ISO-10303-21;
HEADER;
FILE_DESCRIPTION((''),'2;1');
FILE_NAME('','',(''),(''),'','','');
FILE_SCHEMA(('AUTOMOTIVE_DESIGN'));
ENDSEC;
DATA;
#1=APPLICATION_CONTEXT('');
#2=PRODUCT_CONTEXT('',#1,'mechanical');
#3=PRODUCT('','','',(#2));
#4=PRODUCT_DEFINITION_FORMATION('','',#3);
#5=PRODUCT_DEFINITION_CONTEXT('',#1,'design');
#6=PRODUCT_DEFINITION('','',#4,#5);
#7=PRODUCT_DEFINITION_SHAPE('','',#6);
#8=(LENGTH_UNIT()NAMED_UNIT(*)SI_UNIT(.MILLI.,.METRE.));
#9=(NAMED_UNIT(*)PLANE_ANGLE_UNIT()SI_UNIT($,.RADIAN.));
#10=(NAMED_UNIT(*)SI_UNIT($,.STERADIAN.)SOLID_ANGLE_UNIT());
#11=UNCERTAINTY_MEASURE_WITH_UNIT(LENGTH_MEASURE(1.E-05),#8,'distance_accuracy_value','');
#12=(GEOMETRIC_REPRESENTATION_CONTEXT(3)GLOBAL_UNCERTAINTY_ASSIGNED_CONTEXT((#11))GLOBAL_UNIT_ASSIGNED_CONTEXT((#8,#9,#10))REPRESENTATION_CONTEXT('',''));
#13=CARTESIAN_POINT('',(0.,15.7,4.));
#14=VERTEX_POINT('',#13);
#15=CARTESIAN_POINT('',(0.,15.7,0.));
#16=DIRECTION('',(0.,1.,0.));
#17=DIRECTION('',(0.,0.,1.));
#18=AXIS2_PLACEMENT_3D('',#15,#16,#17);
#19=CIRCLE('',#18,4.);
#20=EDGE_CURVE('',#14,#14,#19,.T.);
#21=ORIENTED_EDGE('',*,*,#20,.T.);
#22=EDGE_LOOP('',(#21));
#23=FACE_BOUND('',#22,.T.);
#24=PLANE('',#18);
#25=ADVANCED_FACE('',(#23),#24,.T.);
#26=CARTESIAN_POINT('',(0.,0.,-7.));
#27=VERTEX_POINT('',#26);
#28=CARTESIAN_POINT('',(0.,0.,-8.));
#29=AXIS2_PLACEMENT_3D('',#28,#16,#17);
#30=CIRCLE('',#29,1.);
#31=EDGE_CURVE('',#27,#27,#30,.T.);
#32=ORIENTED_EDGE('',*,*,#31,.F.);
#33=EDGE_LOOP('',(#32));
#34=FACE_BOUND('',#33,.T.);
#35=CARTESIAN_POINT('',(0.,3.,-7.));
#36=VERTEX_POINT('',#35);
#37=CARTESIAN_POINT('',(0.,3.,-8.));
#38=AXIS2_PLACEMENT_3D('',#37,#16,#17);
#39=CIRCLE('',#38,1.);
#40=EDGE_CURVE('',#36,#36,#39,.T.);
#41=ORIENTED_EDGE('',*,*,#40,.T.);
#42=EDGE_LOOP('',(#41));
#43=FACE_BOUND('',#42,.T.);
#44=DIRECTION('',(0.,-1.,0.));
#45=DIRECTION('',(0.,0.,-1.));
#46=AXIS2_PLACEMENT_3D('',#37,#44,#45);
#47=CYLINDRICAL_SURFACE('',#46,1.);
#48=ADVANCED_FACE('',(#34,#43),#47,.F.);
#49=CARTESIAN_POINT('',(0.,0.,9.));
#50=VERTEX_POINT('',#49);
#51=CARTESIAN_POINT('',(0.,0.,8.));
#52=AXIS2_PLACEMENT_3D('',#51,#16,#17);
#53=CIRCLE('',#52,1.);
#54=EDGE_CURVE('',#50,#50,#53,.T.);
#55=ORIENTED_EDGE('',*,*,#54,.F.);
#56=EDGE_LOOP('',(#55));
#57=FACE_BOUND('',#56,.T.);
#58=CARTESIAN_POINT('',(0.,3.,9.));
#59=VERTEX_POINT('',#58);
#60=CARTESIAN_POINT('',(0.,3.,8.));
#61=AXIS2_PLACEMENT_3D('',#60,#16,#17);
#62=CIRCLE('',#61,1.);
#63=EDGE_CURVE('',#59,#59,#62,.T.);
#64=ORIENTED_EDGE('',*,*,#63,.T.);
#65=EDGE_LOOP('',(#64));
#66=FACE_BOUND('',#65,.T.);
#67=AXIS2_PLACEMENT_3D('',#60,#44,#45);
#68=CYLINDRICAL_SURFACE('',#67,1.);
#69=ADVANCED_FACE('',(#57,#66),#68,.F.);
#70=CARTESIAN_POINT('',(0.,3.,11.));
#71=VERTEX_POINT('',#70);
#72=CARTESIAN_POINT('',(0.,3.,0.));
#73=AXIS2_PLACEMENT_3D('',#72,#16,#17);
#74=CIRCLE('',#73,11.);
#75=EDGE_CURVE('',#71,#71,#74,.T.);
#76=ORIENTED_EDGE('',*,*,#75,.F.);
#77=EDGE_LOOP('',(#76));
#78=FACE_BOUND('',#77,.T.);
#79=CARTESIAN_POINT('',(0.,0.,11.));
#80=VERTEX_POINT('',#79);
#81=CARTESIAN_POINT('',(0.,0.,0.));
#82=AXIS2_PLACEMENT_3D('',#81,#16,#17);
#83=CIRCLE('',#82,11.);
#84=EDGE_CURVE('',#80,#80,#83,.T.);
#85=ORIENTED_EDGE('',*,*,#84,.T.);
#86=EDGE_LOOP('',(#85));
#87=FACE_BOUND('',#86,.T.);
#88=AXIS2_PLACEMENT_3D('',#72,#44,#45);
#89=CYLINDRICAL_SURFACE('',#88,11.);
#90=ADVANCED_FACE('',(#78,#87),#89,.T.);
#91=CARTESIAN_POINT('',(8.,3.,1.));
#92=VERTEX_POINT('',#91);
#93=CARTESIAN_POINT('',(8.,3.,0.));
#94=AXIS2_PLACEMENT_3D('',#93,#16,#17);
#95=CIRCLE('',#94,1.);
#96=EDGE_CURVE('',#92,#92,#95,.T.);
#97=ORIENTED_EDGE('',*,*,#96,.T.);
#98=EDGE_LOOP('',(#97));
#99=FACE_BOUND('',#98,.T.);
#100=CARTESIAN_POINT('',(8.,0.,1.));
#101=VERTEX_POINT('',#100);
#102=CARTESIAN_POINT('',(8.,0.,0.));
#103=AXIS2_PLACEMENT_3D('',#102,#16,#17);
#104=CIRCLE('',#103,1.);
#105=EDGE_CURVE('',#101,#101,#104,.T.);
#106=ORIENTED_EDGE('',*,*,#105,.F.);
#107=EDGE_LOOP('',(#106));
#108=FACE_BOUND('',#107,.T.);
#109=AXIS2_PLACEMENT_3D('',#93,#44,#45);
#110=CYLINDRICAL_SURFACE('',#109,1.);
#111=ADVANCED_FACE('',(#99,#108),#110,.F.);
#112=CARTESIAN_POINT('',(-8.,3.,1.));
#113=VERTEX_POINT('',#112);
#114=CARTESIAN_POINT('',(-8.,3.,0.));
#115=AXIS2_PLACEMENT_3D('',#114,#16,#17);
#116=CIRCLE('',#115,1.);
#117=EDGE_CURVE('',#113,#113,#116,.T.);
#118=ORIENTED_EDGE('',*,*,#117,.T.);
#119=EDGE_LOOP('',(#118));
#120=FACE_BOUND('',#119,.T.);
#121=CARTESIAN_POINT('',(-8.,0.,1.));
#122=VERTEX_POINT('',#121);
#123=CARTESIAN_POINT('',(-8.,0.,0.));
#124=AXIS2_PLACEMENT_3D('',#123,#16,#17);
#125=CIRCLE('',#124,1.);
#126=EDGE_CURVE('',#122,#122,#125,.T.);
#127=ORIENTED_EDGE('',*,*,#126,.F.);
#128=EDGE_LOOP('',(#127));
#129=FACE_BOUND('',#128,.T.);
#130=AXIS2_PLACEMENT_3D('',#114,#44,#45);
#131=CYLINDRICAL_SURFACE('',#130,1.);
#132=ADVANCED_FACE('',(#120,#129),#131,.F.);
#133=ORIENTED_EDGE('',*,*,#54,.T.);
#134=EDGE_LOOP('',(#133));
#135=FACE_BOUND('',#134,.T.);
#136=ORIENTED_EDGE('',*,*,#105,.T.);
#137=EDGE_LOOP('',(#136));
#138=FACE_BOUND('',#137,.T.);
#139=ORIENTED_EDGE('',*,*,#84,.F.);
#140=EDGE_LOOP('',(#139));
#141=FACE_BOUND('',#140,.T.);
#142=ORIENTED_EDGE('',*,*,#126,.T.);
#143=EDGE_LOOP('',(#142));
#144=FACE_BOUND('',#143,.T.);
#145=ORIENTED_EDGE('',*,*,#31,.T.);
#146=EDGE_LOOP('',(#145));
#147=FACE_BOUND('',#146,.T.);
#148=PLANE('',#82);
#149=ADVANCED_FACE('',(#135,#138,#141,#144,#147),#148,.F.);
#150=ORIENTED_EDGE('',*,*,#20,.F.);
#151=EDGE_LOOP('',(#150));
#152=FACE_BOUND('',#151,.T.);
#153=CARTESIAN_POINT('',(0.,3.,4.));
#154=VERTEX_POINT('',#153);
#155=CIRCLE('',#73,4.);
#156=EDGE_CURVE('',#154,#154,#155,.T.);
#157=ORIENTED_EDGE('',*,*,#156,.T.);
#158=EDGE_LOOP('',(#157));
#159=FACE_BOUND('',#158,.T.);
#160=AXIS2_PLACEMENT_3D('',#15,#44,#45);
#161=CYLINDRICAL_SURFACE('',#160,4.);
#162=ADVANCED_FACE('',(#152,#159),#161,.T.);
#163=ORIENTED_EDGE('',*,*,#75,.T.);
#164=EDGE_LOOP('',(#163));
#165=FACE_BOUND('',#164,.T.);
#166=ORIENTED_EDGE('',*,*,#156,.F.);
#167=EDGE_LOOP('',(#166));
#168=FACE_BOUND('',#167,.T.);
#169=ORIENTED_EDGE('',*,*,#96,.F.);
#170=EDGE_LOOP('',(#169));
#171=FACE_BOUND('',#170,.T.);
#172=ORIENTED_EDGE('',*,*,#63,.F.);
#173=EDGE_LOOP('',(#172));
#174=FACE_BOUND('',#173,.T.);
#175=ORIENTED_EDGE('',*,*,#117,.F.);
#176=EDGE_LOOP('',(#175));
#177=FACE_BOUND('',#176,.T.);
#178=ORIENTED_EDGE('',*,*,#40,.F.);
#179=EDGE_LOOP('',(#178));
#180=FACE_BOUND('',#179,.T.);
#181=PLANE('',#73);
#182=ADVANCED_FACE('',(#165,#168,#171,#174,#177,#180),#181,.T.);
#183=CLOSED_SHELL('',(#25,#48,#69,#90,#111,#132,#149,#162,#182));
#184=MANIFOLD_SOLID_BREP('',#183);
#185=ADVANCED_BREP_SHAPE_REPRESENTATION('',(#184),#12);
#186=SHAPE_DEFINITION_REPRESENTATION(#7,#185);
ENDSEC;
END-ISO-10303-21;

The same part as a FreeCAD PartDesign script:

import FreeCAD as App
import Part
import Sketcher
from FreeCAD import Vector
Q = App.Units.Quantity

doc = App.newDocument("Part")
params = doc.addObject("Spreadsheet::Sheet", "Params")
for row, (alias, value) in enumerate([
    ("sketch1_diameter", "22 mm"),
    ("sketch1_diameter2", "2 mm"),
    ("pad1_length", "3 mm"),
    ("sketch2_diameter", "8 mm"),
    ("pad2_length", "12.7 mm"),
], start=1):
    params.set(f"A{row}", alias)
    params.set(f"B{row}", "=" + value)
    params.setAlias(f"B{row}", alias)

body = doc.addObject("PartDesign::Body", "Body")

sketch1 = body.newObject("Sketcher::SketchObject", "Sketch")
sketch1.AttachmentSupport = (doc.getObject("XZ_Plane"), [""])
sketch1.MapMode = "FlatFace"
sketch1.addGeometry([
    Part.Circle(Vector(0, 0, 0), Vector(0, 0, 1), 11),
    Part.Circle(Vector(0, -8, 0), Vector(0, 0, 1), 1),
    Part.Circle(Vector(-8, 0, 0), Vector(0, 0, 1), 1),
    Part.Circle(Vector(8, 0, 0), Vector(0, 0, 1), 1),
    Part.Circle(Vector(0, 8, 0), Vector(0, 0, 1), 1),
], False)
sketch1.addConstraint([
    Sketcher.Constraint("Coincident", 0, 3, -1, 1),
    Sketcher.Constraint("Equal", 1, 2),
    Sketcher.Constraint("Equal", 2, 3),
    Sketcher.Constraint("Equal", 3, 4),
    Sketcher.Constraint("Symmetric", 2, 3, 3, 3, -1, 1),
    Sketcher.Constraint("Symmetric", 1, 3, 4, 3, -1, 1),
    Sketcher.Constraint("PointOnObject", 1, 3, -2),
    Sketcher.Constraint("PointOnObject", 2, 3, -1),
    Sketcher.Constraint("Diameter", 0, Q("22 mm")),
    Sketcher.Constraint("Diameter", 1, Q("2 mm")),
    Sketcher.Constraint("DistanceY", 1, 3, -1, 1, Q("8 mm")),
    Sketcher.Constraint("DistanceX", 2, 3, -1, 1, Q("8 mm")),
])
sketch1.setExpression("Constraints[8]", "Params.sketch1_diameter")
sketch1.setExpression("Constraints[9]", "Params.sketch1_diameter2")
pad1 = body.newObject("PartDesign::Pad", "Pad")
pad1.Profile = sketch1
pad1.setExpression("Length", "Params.pad1_length")
pad1.Reversed = True

sketch2 = body.newObject("Sketcher::SketchObject", "Sketch001")
sketch2.AttachmentSupport = (doc.getObject("XZ_Plane"), [""])
sketch2.MapMode = "FlatFace"
sketch2.AttachmentOffset = App.Placement(Vector(0, 0, -3), App.Rotation())
sketch2.addGeometry(Part.Circle(Vector(0, 0, 0), Vector(0, 0, 1), 4), False)
sketch2.addConstraint([
    Sketcher.Constraint("Coincident", 0, 3, -1, 1),
    Sketcher.Constraint("Diameter", 0, Q("8 mm")),
])
sketch2.setExpression("Constraints[1]", "Params.sketch2_diameter")
pad2 = body.newObject("PartDesign::Pad", "Pad001")
pad2.Profile = sketch2
pad2.setExpression("Length", "Params.pad2_length")
pad2.Reversed = True

doc.recompute()
